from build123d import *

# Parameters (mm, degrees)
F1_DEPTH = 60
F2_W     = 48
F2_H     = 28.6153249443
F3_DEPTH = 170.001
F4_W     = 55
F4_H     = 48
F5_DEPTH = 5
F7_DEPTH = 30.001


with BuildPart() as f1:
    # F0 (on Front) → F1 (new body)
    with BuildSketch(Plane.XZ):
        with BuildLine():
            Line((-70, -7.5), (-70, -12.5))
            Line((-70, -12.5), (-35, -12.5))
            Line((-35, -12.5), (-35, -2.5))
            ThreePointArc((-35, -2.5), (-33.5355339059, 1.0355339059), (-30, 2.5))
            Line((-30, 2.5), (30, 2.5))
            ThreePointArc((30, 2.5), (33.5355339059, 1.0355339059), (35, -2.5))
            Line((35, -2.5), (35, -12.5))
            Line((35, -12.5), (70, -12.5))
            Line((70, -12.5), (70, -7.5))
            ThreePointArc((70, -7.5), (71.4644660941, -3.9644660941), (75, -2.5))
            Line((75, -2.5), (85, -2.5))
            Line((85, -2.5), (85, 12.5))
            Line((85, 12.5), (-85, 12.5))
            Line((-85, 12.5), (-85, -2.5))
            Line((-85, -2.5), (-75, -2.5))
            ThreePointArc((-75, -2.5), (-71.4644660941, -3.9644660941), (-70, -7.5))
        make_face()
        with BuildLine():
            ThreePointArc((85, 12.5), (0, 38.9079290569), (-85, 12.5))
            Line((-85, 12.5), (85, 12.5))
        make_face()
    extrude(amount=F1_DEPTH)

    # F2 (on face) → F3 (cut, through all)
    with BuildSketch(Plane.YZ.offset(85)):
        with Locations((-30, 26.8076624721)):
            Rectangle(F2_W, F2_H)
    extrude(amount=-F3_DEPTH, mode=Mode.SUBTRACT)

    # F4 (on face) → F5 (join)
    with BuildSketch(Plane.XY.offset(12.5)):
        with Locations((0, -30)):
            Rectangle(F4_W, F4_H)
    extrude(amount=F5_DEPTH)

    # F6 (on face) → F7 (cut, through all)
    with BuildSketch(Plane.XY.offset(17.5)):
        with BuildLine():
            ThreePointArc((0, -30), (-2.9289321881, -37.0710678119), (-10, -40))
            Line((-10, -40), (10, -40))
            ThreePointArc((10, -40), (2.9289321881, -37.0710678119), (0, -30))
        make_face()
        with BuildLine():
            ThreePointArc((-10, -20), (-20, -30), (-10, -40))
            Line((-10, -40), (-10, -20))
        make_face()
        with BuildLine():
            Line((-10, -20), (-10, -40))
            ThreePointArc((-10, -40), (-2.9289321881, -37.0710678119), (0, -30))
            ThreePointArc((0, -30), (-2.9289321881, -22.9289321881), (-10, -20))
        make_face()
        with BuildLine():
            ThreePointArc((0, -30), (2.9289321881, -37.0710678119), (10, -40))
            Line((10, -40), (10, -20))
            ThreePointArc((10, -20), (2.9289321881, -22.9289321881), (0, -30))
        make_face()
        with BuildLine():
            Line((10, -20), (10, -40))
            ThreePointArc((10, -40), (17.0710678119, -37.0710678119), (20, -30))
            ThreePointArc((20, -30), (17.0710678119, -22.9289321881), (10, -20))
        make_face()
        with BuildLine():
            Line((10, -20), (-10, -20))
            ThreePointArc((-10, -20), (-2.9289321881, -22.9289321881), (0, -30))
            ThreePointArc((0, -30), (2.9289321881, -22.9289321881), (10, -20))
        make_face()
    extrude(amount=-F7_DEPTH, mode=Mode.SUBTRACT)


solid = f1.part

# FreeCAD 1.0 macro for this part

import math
import FreeCAD as App
import Part
import Sketcher

V = App.Vector

doc = App.newDocument("Part")
body = doc.addObject("PartDesign::Body", "Body")

# Sketch on XZ plane
sketch1 = doc.addObject("Sketcher::SketchObject", "Sketch")
body.addObject(sketch1)
sketch1.AttachmentSupport = (doc.XZ_Plane, [""])
sketch1.MapMode = "FlatFace"
sketch1.addGeometry(Part.LineSegment(V(-70, -7.5, 0), V(-70, -12.5, 0)), False)
sketch1.addGeometry(Part.LineSegment(V(-70, -12.5, 0), V(-35, -12.5, 0)), False)
sketch1.addGeometry(Part.LineSegment(V(-35, -12.5, 0), V(-35, -2.5, 0)), False)
sketch1.addGeometry(Part.ArcOfCircle(Part.Circle(V(-30, -2.5, 0), V(0, 0, 1), 5), math.radians(90), math.radians(180)), False)
sketch1.addGeometry(Part.LineSegment(V(-30, 2.5, 0), V(30, 2.5, 0)), False)
sketch1.addGeometry(Part.ArcOfCircle(Part.Circle(V(30, -2.5, 0), V(0, 0, 1), 5), math.radians(0), math.radians(90)), False)
sketch1.addGeometry(Part.LineSegment(V(35, -2.5, 0), V(35, -12.5, 0)), False)
sketch1.addGeometry(Part.LineSegment(V(35, -12.5, 0), V(70, -12.5, 0)), False)
sketch1.addGeometry(Part.LineSegment(V(70, -12.5, 0), V(70, -7.5, 0)), False)
sketch1.addGeometry(Part.ArcOfCircle(Part.Circle(V(75, -7.5, 0), V(0, 0, 1), 5), math.radians(90), math.radians(180)), False)
sketch1.addGeometry(Part.LineSegment(V(75, -2.5, 0), V(85, -2.5, 0)), False)
sketch1.addGeometry(Part.LineSegment(V(85, -2.5, 0), V(85, 12.5, 0)), False)
sketch1.addGeometry(Part.ArcOfCircle(Part.Circle(V(0, -111.092071, 0), V(0, 0, 1), 150), math.radians(55.481892), math.radians(124.518108)), False)
sketch1.addGeometry(Part.LineSegment(V(-85, 12.5, 0), V(-85, -2.5, 0)), False)
sketch1.addGeometry(Part.LineSegment(V(-85, -2.5, 0), V(-75, -2.5, 0)), False)
sketch1.addGeometry(Part.ArcOfCircle(Part.Circle(V(-75, -7.5, 0), V(0, 0, 1), 5), math.radians(0), math.radians(90)), False)
sketch1.addConstraint(Sketcher.Constraint("Coincident", 0, 2, 1, 1))
sketch1.addConstraint(Sketcher.Constraint("Coincident", 1, 2, 2, 1))
sketch1.addConstraint(Sketcher.Constraint("Tangent", 2, 2, 3, 2))
sketch1.addConstraint(Sketcher.Constraint("Tangent", 3, 1, 4, 1))
sketch1.addConstraint(Sketcher.Constraint("Tangent", 4, 2, 5, 2))
sketch1.addConstraint(Sketcher.Constraint("Tangent", 5, 1, 6, 1))
sketch1.addConstraint(Sketcher.Constraint("Coincident", 6, 2, 7, 1))
sketch1.addConstraint(Sketcher.Constraint("Coincident", 7, 2, 8, 1))
sketch1.addConstraint(Sketcher.Constraint("Tangent", 8, 2, 9, 2))
sketch1.addConstraint(Sketcher.Constraint("Tangent", 9, 1, 10, 1))
sketch1.addConstraint(Sketcher.Constraint("Coincident", 10, 2, 11, 1))
sketch1.addConstraint(Sketcher.Constraint("Coincident", 11, 2, 12, 1))
sketch1.addConstraint(Sketcher.Constraint("Coincident", 12, 2, 13, 1))
sketch1.addConstraint(Sketcher.Constraint("Coincident", 13, 2, 14, 1))
sketch1.addConstraint(Sketcher.Constraint("Tangent", 14, 2, 15, 2))
sketch1.addConstraint(Sketcher.Constraint("Tangent", 15, 1, 0, 1))
sketch1.addConstraint(Sketcher.Constraint("Vertical", 0))
sketch1.addConstraint(Sketcher.Constraint("Horizontal", 1))
sketch1.addConstraint(Sketcher.Constraint("Vertical", 2))
sketch1.addConstraint(Sketcher.Constraint("Horizontal", 4))
sketch1.addConstraint(Sketcher.Constraint("Vertical", 6))
sketch1.addConstraint(Sketcher.Constraint("Horizontal", 7))
sketch1.addConstraint(Sketcher.Constraint("Vertical", 8))
sketch1.addConstraint(Sketcher.Constraint("Horizontal", 10))
sketch1.addConstraint(Sketcher.Constraint("Vertical", 11))
sketch1.addConstraint(Sketcher.Constraint("Vertical", 13))
sketch1.addConstraint(Sketcher.Constraint("Horizontal", 14))
sketch1.addConstraint(Sketcher.Constraint("Equal", 3, 5))
sketch1.addConstraint(Sketcher.Constraint("Equal", 5, 9))
sketch1.addConstraint(Sketcher.Constraint("Equal", 9, 15))
sketch1.addConstraint(Sketcher.Constraint("Symmetric", 9, 3, 15, 3, -2))
sketch1.addConstraint(Sketcher.Constraint("Symmetric", 1, 2, 6, 2, -2))
sketch1.addConstraint(Sketcher.Constraint("Symmetric", 11, 2, 12, 2, -2))
sketch1.addConstraint(Sketcher.Constraint("Horizontal", 5, 1, 9, 1))
sketch1.addConstraint(Sketcher.Constraint("Equal", 14, 2))
sketch1.addConstraint(Sketcher.Constraint("Radius", 3, 5.0))
sketch1.addConstraint(Sketcher.Constraint("Radius", 12, 150.0))
sketch1.addConstraint(Sketcher.Constraint("DistanceX", 1, 1, 1, 2, 35.0))
sketch1.addConstraint(Sketcher.Constraint("DistanceX", 4, 1, 4, 2, 60.0))
sketch1.addConstraint(Sketcher.Constraint("DistanceX", 10, 1, 10, 2, 10.0))
sketch1.addConstraint(Sketcher.Constraint("DistanceY", 11, 1, 11, 2, 15.0))
sketch1.addConstraint(Sketcher.Constraint("DistanceY", 3, 3, -1, 1, 2.5))
pad1 = doc.addObject("PartDesign::Pad", "Pad")
body.addObject(pad1)
pad1.Profile = sketch1
pad1.Length = 60

# Sketch on YZ plane
sketch2 = doc.addObject("Sketcher::SketchObject", "Sketch001")
body.addObject(sketch2)
sketch2.AttachmentSupport = (doc.YZ_Plane, [""])
sketch2.MapMode = "FlatFace"
sketch2.AttachmentOffset = App.Placement(V(0, 0, 85), App.Rotation())
sketch2.addGeometry(Part.LineSegment(V(-54, 41.115325, 0), V(-54, 12.5, 0)), False)
sketch2.addGeometry(Part.LineSegment(V(-54, 12.5, 0), V(-6, 12.5, 0)), False)
sketch2.addGeometry(Part.LineSegment(V(-6, 12.5, 0), V(-6, 41.115325, 0)), False)
sketch2.addGeometry(Part.LineSegment(V(-6, 41.115325, 0), V(-54, 41.115325, 0)), False)
sketch2.addConstraint(Sketcher.Constraint("Coincident", 0, 2, 1, 1))
sketch2.addConstraint(Sketcher.Constraint("Coincident", 1, 2, 2, 1))
sketch2.addConstraint(Sketcher.Constraint("Coincident", 2, 2, 3, 1))
sketch2.addConstraint(Sketcher.Constraint("Coincident", 3, 2, 0, 1))
sketch2.addConstraint(Sketcher.Constraint("Vertical", 0))
sketch2.addConstraint(Sketcher.Constraint("Horizontal", 1))
sketch2.addConstraint(Sketcher.Constraint("Vertical", 2))
sketch2.addConstraint(Sketcher.Constraint("Horizontal", 3))
sketch2.addConstraint(Sketcher.Constraint("DistanceX", 1, 1, 1, 2, 48.0))
sketch2.addConstraint(Sketcher.Constraint("DistanceX", 0, 2, -1, 1, 54.0))
sketch2.addConstraint(Sketcher.Constraint("DistanceY", -1, 1, 0, 2, 12.5))
sketch2.addConstraint(Sketcher.Constraint("DistanceY", 0, 2, 0, 1, 28.615325))
pocket1 = doc.addObject("PartDesign::Pocket", "Pocket")
body.addObject(pocket1)
pocket1.Profile = sketch2
pocket1.Type = "ThroughAll"

# Sketch on XY plane
sketch3 = doc.addObject("Sketcher::SketchObject", "Sketch002")
body.addObject(sketch3)
sketch3.AttachmentSupport = (doc.XY_Plane, [""])
sketch3.MapMode = "FlatFace"
sketch3.AttachmentOffset = App.Placement(V(0, 0, 12.5), App.Rotation())
sketch3.addGeometry(Part.LineSegment(V(-27.5, -6, 0), V(-27.5, -54, 0)), False)
sketch3.addGeometry(Part.LineSegment(V(-27.5, -54, 0), V(27.5, -54, 0)), False)
sketch3.addGeometry(Part.LineSegment(V(27.5, -54, 0), V(27.5, -6, 0)), False)
sketch3.addGeometry(Part.LineSegment(V(27.5, -6, 0), V(-27.5, -6, 0)), False)
sketch3.addConstraint(Sketcher.Constraint("Coincident", 0, 2, 1, 1))
sketch3.addConstraint(Sketcher.Constraint("Coincident", 1, 2, 2, 1))
sketch3.addConstraint(Sketcher.Constraint("Coincident", 2, 2, 3, 1))
sketch3.addConstraint(Sketcher.Constraint("Coincident", 3, 2, 0, 1))
sketch3.addConstraint(Sketcher.Constraint("Vertical", 0))
sketch3.addConstraint(Sketcher.Constraint("Horizontal", 1))
sketch3.addConstraint(Sketcher.Constraint("Vertical", 2))
sketch3.addConstraint(Sketcher.Constraint("Horizontal", 3))
sketch3.addConstraint(Sketcher.Constraint("DistanceX", 1, 1, 1, 2, 55.0))
sketch3.addConstraint(Sketcher.Constraint("DistanceY", 0, 2, 0, 1, 48.0))
sketch3.addConstraint(Sketcher.Constraint("DistanceY", 0, 2, -1, 1, 54.0))
sketch3.addConstraint(Sketcher.Constraint("DistanceX", 0, 2, -1, 1, 27.5))
pad2 = doc.addObject("PartDesign::Pad", "Pad001")
body.addObject(pad2)
pad2.Profile = sketch3
pad2.Length = 5

# Sketch on XY plane
sketch4 = doc.addObject("Sketcher::SketchObject", "Sketch003")
body.addObject(sketch4)
sketch4.AttachmentSupport = (doc.XY_Plane, [""])
sketch4.MapMode = "FlatFace"
sketch4.AttachmentOffset = App.Placement(V(0, 0, 17.5), App.Rotation())
sketch4.addGeometry(Part.LineSegment(V(-10, -40, 0), V(10, -40, 0)), False)
sketch4.addGeometry(Part.ArcOfCircle(Part.Circle(V(10, -30, 0), V(0, 0, 1), 10), math.radians(-90), math.radians(0)), False)
sketch4.addGeometry(Part.ArcOfCircle(Part.Circle(V(10, -30, 0), V(0, 0, 1), 10), math.radians(0), math.radians(90)), False)
sketch4.addGeometry(Part.LineSegment(V(10, -20, 0), V(-10, -20, 0)), False)
sketch4.addGeometry(Part.ArcOfCircle(Part.Circle(V(-10, -30, 0), V(0, 0, 1), 10), math.radians(90), math.radians(270)), False)
sketch4.addConstraint(Sketcher.Constraint("Tangent", 0, 2, 1, 1))
sketch4.addConstraint(Sketcher.Constraint("Tangent", 1, 2, 2, 1))
sketch4.addConstraint(Sketcher.Constraint("Tangent", 2, 2, 3, 1))
sketch4.addConstraint(Sketcher.Constraint("Tangent", 3, 2, 4, 1))
sketch4.addConstraint(Sketcher.Constraint("Tangent", 4, 2, 0, 1))
sketch4.addConstraint(Sketcher.Constraint("Horizontal", 0))
sketch4.addConstraint(Sketcher.Constraint("Horizontal", 3))
sketch4.addConstraint(Sketcher.Constraint("Equal", 1, 2))
sketch4.addConstraint(Sketcher.Constraint("Horizontal", 4, 3, 1, 2))
sketch4.addConstraint(Sketcher.Constraint("Radius", 1, 10.0))
sketch4.addConstraint(Sketcher.Constraint("DistanceX", 0, 1, 0, 2, 20.0))
sketch4.addConstraint(Sketcher.Constraint("DistanceX", -1, 1, 1, 3, 10.0))
sketch4.addConstraint(Sketcher.Constraint("DistanceY", 1, 3, -1, 1, 30.0))
pocket2 = doc.addObject("PartDesign::Pocket", "Pocket001")
body.addObject(pocket2)
pocket2.Profile = sketch4
pocket2.Type = "ThroughAll"

doc.recompute()
